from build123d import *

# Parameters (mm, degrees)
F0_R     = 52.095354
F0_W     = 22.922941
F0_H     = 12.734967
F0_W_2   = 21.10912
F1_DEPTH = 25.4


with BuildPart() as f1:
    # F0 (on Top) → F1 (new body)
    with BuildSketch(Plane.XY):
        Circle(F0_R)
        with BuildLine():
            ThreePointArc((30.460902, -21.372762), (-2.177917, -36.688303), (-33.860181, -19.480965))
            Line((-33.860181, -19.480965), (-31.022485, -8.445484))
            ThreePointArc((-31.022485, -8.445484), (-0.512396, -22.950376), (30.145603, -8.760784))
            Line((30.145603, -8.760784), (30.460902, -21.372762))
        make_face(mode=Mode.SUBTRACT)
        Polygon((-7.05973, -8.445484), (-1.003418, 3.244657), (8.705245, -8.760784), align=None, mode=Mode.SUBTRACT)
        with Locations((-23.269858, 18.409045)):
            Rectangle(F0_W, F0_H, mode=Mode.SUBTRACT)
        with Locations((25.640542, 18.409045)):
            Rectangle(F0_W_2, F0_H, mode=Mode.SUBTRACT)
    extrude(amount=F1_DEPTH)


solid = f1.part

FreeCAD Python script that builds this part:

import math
import FreeCAD as App
import Part
import Sketcher

V = App.Vector
Q = App.Units.Quantity

doc = App.newDocument("Part")
body = doc.addObject("PartDesign::Body", "Body")

# Sketch on XY plane
sketch1 = body.newObject("Sketcher::SketchObject", "Sketch")
sketch1.AttachmentSupport = (doc.getObject("XY_Plane"), [""])
sketch1.MapMode = "FlatFace"
sketch1.addGeometry([
    Part.Circle(V(0, 0, 0), V(0, 0, 1), 52.095354),  # 0
    Part.LineSegment(V(30.145603, -8.760784, 0), V(30.460902, -21.372762, 0)),  # 1
    Part.ArcOfCircle(Part.Circle(V(-1.003418, 3.244658, 0), V(0, 0, 1), 39.950229), math.radians(-145.330042), math.radians(-38.039327)),  # 2
    Part.LineSegment(V(-33.860181, -19.480965, 0), V(-31.022485, -8.445484, 0)),  # 3
    Part.ArcOfCircle(Part.Circle(V(-0.307387, 16.821278, 0), V(0, 0, 1), 39.772183), math.radians(-140.558704), math.radians(-40.03197)),  # 4
    Part.LineSegment(V(-11.808388, 12.041562, 0), V(-34.731328, 12.041562, 0)),  # 5
    Part.LineSegment(V(-34.731328, 12.041562, 0), V(-34.731328, 24.776529, 0)),  # 6
    Part.LineSegment(V(-34.731328, 24.776529, 0), V(-11.808388, 24.776529, 0)),  # 7
    Part.LineSegment(V(-11.808388, 24.776529, 0), V(-11.808388, 12.041562, 0)),  # 8
    Part.LineSegment(V(8.705245, -8.760784, 0), V(-7.05973, -8.445484, 0)),  # 9
    Part.LineSegment(V(-7.05973, -8.445484, 0), V(-1.003418, 3.244657, 0)),  # 10
    Part.LineSegment(V(-1.003418, 3.244657, 0), V(8.705245, -8.760784, 0)),  # 11
    Part.LineSegment(V(36.195102, 12.041562, 0), V(15.085982, 12.041562, 0)),  # 12
    Part.LineSegment(V(15.085982, 12.041562, 0), V(15.085982, 24.776529, 0)),  # 13
    Part.LineSegment(V(15.085982, 24.776529, 0), V(36.195102, 24.776529, 0)),  # 14
    Part.LineSegment(V(36.195102, 24.776529, 0), V(36.195102, 12.041562, 0)),  # 15
], False)
sketch1.addConstraint([
    Sketcher.Constraint("Coincident", 1, 2, 2, 2),
    Sketcher.Constraint("Coincident", 2, 1, 3, 1),
    Sketcher.Constraint("Coincident", 3, 2, 4, 1),
    Sketcher.Constraint("Coincident", 4, 2, 1, 1),
    Sketcher.Constraint("Coincident", 5, 2, 6, 1),
    Sketcher.Constraint("Coincident", 6, 2, 7, 1),
    Sketcher.Constraint("Coincident", 7, 2, 8, 1),
    Sketcher.Constraint("Coincident", 8, 2, 5, 1),
    Sketcher.Constraint("Coincident", 9, 2, 10, 1),
    Sketcher.Constraint("Coincident", 10, 2, 11, 1),
    Sketcher.Constraint("Coincident", 11, 2, 9, 1),
    Sketcher.Constraint("Coincident", 12, 2, 13, 1),
    Sketcher.Constraint("Coincident", 13, 2, 14, 1),
    Sketcher.Constraint("Coincident", 14, 2, 15, 1),
    Sketcher.Constraint("Coincident", 15, 2, 12, 1),
    Sketcher.Constraint("Horizontal", 5),
    Sketcher.Constraint("Vertical", 6),
    Sketcher.Constraint("Horizontal", 7),
    Sketcher.Constraint("Vertical", 8),
    Sketcher.Constraint("Horizontal", 12),
    Sketcher.Constraint("Vertical", 13),
    Sketcher.Constraint("Horizontal", 14),
    Sketcher.Constraint("Vertical", 15),
    Sketcher.Constraint("Coincident", 0, 3, -1, 1),
    Sketcher.Constraint("Coincident", 10, 2, 2, 3),
    Sketcher.Constraint("Horizontal", 3, 2, 9, 2),
    Sketcher.Constraint("Horizontal", 4, 2, 11, 2),
    Sketcher.Constraint("Horizontal", 8, 2, 12, 2),
    Sketcher.Constraint("Horizontal", 7, 2, 13, 2),
    Sketcher.Constraint("Diameter", 0, 104.190708),
    Sketcher.Constraint("Radius", 2, 39.950229),
    Sketcher.Constraint("Radius", 4, 39.772183),
    Sketcher.Constraint("Distance", 10, 13.165801),
    Sketcher.Constraint("DistanceX", 5, 2, 5, 1, 22.922941),
    Sketcher.Constraint("DistanceX", 12, 2, 12, 1, 21.10912),
    Sketcher.Constraint("DistanceX", 4, 2, 1, 2, 0.315299),
    Sketcher.Constraint("DistanceY", 4, 2, 3, 2, 0.3153),
    Sketcher.Constraint("DistanceX", 7, 2, 4, 3, 11.501),
    Sketcher.Constraint("DistanceX", 2, 3, 12, 2, 16.0894),
    Sketcher.Constraint("DistanceX", 4, 2, 14, 2, 6.049499),
    Sketcher.Constraint("Distance", 1, 12.615919),
    Sketcher.Constraint("Distance", 3, 11.394488),
    Sketcher.Constraint("DistanceY", 6, 1, 6, 2, 12.734967),
    Sketcher.Constraint("DistanceX", 2, 3, -1, 1, 1.003418),
    Sketcher.Constraint("DistanceY", -1, 1, 4, 3, 16.821278),
    Sketcher.Constraint("DistanceX", 2, 1, -1, 1, 33.860181),
    Sketcher.Constraint("DistanceY", -1, 1, 5, 2, 12.041562),
    Sketcher.Constraint("DistanceX", 11, 2, 4, 2, 21.440358),
])
pad1 = body.newObject("PartDesign::Pad", "Pad")
pad1.Profile = sketch1
pad1.Length = Q("1 in")

doc.recompute()
